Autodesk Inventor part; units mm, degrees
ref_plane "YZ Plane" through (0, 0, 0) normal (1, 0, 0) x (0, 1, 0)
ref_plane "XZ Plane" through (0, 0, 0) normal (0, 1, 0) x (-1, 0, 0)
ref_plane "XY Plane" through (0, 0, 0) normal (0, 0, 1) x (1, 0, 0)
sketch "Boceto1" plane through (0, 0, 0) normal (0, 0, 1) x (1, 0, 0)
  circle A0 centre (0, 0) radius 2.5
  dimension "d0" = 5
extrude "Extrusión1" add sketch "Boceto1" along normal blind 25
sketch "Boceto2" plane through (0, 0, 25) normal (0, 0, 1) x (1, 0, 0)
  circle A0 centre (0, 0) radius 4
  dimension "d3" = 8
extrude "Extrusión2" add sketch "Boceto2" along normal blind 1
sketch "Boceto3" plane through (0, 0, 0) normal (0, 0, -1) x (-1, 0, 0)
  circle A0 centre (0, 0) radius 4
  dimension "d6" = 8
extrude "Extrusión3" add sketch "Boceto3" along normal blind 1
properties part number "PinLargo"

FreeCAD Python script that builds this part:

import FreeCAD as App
import Part
import Sketcher

V = App.Vector

doc = App.newDocument("Part")
body = doc.addObject("PartDesign::Body", "Body")

# Sketch on XY plane
sketch1 = body.newObject("Sketcher::SketchObject", "Sketch")
sketch1.AttachmentSupport = (doc.getObject("XY_Plane"), [""])
sketch1.MapMode = "FlatFace"
sketch1.addGeometry(Part.Circle(V(0, 0, 0), V(0, 0, 1), 2.5), False)
sketch1.addConstraint([
    Sketcher.Constraint("Coincident", 0, 3, -1, 1),
    Sketcher.Constraint("Diameter", 0, 5.0),
])
pad1 = body.newObject("PartDesign::Pad", "Pad")
pad1.Profile = sketch1
pad1.Length = 25

# Sketch on XY plane
sketch2 = body.newObject("Sketcher::SketchObject", "Sketch001")
sketch2.AttachmentSupport = (doc.getObject("XY_Plane"), [""])
sketch2.MapMode = "FlatFace"
sketch2.AttachmentOffset = App.Placement(V(0, 0, 25), App.Rotation())
sketch2.addGeometry(Part.Circle(V(0, 0, 0), V(0, 0, 1), 4), False)
sketch2.addConstraint([
    Sketcher.Constraint("Coincident", 0, 3, -1, 1),
    Sketcher.Constraint("Diameter", 0, 8.0),
])
pad2 = body.newObject("PartDesign::Pad", "Pad001")
pad2.Profile = sketch2
pad2.Length = 1

# Sketch on XY plane
sketch3 = body.newObject("Sketcher::SketchObject", "Sketch002")
sketch3.AttachmentSupport = (doc.getObject("XY_Plane"), [""])
sketch3.MapMode = "FlatFace"
sketch3.addGeometry(Part.Circle(V(0, 0, 0), V(0, 0, 1), 4), False)
sketch3.addConstraint([
    Sketcher.Constraint("Coincident", 0, 3, -1, 1),
    Sketcher.Constraint("Diameter", 0, 8.0),
])
pad3 = body.newObject("PartDesign::Pad", "Pad002")
pad3.Profile = sketch3
pad3.Length = 1
pad3.Reversed = True

doc.recompute()
